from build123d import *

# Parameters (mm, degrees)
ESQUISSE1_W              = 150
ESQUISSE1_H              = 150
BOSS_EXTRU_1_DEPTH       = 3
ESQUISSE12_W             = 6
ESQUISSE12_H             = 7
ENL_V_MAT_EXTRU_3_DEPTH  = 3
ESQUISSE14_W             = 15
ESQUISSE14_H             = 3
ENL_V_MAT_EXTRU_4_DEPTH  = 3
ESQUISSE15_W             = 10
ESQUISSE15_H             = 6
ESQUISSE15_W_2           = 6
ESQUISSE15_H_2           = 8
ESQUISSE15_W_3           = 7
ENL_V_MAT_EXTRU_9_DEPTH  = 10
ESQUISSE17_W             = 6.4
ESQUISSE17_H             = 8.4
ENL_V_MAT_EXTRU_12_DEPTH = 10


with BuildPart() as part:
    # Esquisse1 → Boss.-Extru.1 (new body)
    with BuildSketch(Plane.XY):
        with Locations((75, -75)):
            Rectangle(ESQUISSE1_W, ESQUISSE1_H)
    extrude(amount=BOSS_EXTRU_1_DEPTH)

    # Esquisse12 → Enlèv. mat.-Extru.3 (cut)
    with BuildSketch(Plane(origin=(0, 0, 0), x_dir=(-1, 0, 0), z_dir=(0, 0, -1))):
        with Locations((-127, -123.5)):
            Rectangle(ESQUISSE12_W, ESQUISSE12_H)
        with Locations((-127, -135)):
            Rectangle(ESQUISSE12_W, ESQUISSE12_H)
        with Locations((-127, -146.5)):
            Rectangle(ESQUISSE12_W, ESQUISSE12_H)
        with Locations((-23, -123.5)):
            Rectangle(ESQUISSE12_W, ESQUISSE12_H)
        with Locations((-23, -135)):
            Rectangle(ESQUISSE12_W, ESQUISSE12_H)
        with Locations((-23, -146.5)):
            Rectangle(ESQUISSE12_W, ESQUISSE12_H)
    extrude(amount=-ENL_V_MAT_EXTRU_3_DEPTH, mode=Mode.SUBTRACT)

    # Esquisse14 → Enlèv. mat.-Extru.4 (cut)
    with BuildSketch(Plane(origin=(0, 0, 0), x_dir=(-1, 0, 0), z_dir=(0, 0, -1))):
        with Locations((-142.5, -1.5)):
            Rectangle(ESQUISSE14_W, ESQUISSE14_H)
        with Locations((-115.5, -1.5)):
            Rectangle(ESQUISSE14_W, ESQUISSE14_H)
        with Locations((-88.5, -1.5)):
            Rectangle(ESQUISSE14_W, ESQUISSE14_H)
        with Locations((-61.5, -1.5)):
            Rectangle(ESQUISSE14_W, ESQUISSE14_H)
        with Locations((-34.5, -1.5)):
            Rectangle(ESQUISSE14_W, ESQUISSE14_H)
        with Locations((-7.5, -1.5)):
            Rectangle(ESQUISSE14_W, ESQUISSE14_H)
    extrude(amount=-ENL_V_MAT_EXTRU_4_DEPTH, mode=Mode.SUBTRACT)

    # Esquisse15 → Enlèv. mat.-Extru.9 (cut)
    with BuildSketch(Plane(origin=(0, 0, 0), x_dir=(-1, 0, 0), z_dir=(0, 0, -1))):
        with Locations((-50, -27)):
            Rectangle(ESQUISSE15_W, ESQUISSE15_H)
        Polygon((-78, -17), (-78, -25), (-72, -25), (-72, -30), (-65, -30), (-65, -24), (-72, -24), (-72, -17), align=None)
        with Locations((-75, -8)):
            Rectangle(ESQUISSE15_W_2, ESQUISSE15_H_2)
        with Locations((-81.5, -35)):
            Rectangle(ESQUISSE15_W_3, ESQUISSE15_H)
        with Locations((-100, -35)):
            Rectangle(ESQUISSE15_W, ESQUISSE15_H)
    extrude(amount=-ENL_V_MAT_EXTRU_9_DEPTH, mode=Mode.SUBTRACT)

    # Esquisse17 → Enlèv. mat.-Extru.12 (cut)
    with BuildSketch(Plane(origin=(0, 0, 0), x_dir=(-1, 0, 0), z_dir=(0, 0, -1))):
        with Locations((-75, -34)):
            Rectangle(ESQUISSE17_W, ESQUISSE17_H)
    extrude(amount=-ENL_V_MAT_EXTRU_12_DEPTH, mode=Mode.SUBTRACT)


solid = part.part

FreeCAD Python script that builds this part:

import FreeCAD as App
import Part
import Sketcher
from FreeCAD import Vector
Q = App.Units.Quantity


def add_polygon(sketch, points):
    """Adds a closed chain of lines whose ends are joined by coincident constraints."""
    first, n = sketch.GeometryCount, len(points)
    for a, b in zip(points, points[1:] + points[:1]):
        sketch.addGeometry(Part.LineSegment(App.Vector(*a, 0), App.Vector(*b, 0)), False)
    for i in range(n):
        sketch.addConstraint(Sketcher.Constraint("Coincident", first + i, 2, first + (i + 1) % n, 1))

doc = App.newDocument("Part")
body = doc.addObject("PartDesign::Body", "Body")

# Sketch on XY plane
sketch1 = body.newObject("Sketcher::SketchObject", "Sketch")
sketch1.AttachmentSupport = (doc.getObject("XY_Plane"), [""])
sketch1.MapMode = "FlatFace"
add_polygon(sketch1, [(0, 0), (0, -150), (150, -150), (150, 0)])  # lines 0-3
sketch1.addConstraint([
    Sketcher.Constraint("Vertical", 0),
    Sketcher.Constraint("Horizontal", 1),
    Sketcher.Constraint("Vertical", 2),
    Sketcher.Constraint("Horizontal", 3),
    Sketcher.Constraint("Coincident", 3, 2, -1, 1),
    Sketcher.Constraint("Equal", 3, 0),
    Sketcher.Constraint("DistanceX", 1, 1, 1, 2, Q("150 mm")),
])
pad1 = body.newObject("PartDesign::Pad", "Pad")
pad1.Profile = sketch1
pad1.Length = 3

# Sketch on XY plane
sketch2 = body.newObject("Sketcher::SketchObject", "Sketch001")
sketch2.AttachmentSupport = (doc.getObject("XY_Plane"), [""])
sketch2.MapMode = "FlatFace"
add_polygon(sketch2, [(130, -120), (130, -127), (124, -127), (124, -120)])  # lines 0-3
add_polygon(sketch2, [(130, -131.5), (130, -138.5), (124, -138.5), (124, -131.5)])  # lines 4-7
add_polygon(sketch2, [(130, -143), (130, -150), (124, -150), (124, -143)])  # lines 8-11
add_polygon(sketch2, [(26, -120), (26, -127), (20, -127), (20, -120)])  # lines 12-15
add_polygon(sketch2, [(26, -131.5), (26, -138.5), (20, -138.5), (20, -131.5)])  # lines 16-19
add_polygon(sketch2, [(26, -143), (26, -150), (20, -150), (20, -143)])  # lines 20-23
sketch2.addConstraint([
    Sketcher.Constraint("Vertical", 0),
    Sketcher.Constraint("Horizontal", 1),
    Sketcher.Constraint("Vertical", 2),
    Sketcher.Constraint("Horizontal", 3),
    Sketcher.Constraint("Vertical", 4),
    Sketcher.Constraint("Horizontal", 5),
    Sketcher.Constraint("Vertical", 6),
    Sketcher.Constraint("Horizontal", 7),
    Sketcher.Constraint("Vertical", 8),
    Sketcher.Constraint("Horizontal", 9),
    Sketcher.Constraint("Vertical", 10),
    Sketcher.Constraint("Horizontal", 11),
    Sketcher.Constraint("Vertical", 12),
    Sketcher.Constraint("Horizontal", 13),
    Sketcher.Constraint("Vertical", 14),
    Sketcher.Constraint("Horizontal", 15),
    Sketcher.Constraint("Vertical", 16),
    Sketcher.Constraint("Horizontal", 17),
    Sketcher.Constraint("Vertical", 18),
    Sketcher.Constraint("Horizontal", 19),
    Sketcher.Constraint("Vertical", 20),
    Sketcher.Constraint("Horizontal", 21),
    Sketcher.Constraint("Vertical", 22),
    Sketcher.Constraint("Horizontal", 23),
    Sketcher.Constraint("Horizontal", 1, 2, 12, 2),
    Sketcher.Constraint("Horizontal", 3, 2, 14, 2),
    Sketcher.Constraint("Horizontal", 5, 2, 16, 2),
    Sketcher.Constraint("Horizontal", 7, 2, 18, 2),
    Sketcher.Constraint("Horizontal", 9, 2, 20, 2),
    Sketcher.Constraint("Horizontal", 11, 2, 22, 2),
    Sketcher.Constraint("Vertical", 3, 2, 4, 2),
    Sketcher.Constraint("Vertical", 2, 2, 5, 2),
    Sketcher.Constraint("Vertical", 7, 2, 8, 2),
    Sketcher.Constraint("Vertical", 6, 2, 9, 2),
    Sketcher.Constraint("Vertical", 15, 2, 16, 2),
    Sketcher.Constraint("Vertical", 14, 2, 17, 2),
    Sketcher.Constraint("Vertical", 19, 2, 20, 2),
    Sketcher.Constraint("Vertical", 18, 2, 21, 2),
    Sketcher.Constraint("Equal", 11, 13),
    Sketcher.Constraint("Equal", 2, 4),
    Sketcher.Constraint("Equal", 6, 8),
    Sketcher.Constraint("DistanceX", 1, 2, 1, 1, Q("6 mm")),
    Sketcher.Constraint("DistanceY", 0, 2, 0, 1, Q("7 mm")),
    Sketcher.Constraint("DistanceX", -1, 1, 0, 2, Q("130 mm")),
    Sketcher.Constraint("DistanceY", 0, 2, -1, 1, Q("127 mm")),
    Sketcher.Constraint("DistanceY", 8, 2, -1, 1, Q("150 mm")),
    Sketcher.Constraint("DistanceX", -1, 1, 12, 2, Q("26 mm")),
    Sketcher.Constraint("DistanceY", 4, 2, -1, 1, Q("138.5 mm")),
])
pocket1 = body.newObject("PartDesign::Pocket", "Pocket")
pocket1.Profile = sketch2
pocket1.Length = 3
pocket1.Reversed = True

# Sketch on XY plane
sketch3 = body.newObject("Sketcher::SketchObject", "Sketch002")
sketch3.AttachmentSupport = (doc.getObject("XY_Plane"), [""])
sketch3.MapMode = "FlatFace"
add_polygon(sketch3, [(150, 0), (150, -3), (135, -3), (135, 0)])  # lines 0-3
add_polygon(sketch3, [(123, 0), (123, -3), (108, -3), (108, 0)])  # lines 4-7
add_polygon(sketch3, [(96, 0), (96, -3), (81, -3), (81, 0)])  # lines 8-11
add_polygon(sketch3, [(69, 0), (69, -3), (54, -3), (54, 0)])  # lines 12-15
add_polygon(sketch3, [(42, 0), (42, -3), (27, -3), (27, 0)])  # lines 16-19
add_polygon(sketch3, [(15, 0), (15, -3), (0, -3), (0, 0)])  # lines 20-23
sketch3.addConstraint([
    Sketcher.Constraint("Vertical", 0),
    Sketcher.Constraint("Horizontal", 1),
    Sketcher.Constraint("Vertical", 2),
    Sketcher.Constraint("Horizontal", 3),
    Sketcher.Constraint("Vertical", 4),
    Sketcher.Constraint("Horizontal", 5),
    Sketcher.Constraint("Vertical", 6),
    Sketcher.Constraint("Horizontal", 7),
    Sketcher.Constraint("Vertical", 8),
    Sketcher.Constraint("Horizontal", 9),
    Sketcher.Constraint("Vertical", 10),
    Sketcher.Constraint("Horizontal", 11),
    Sketcher.Constraint("Vertical", 12),
    Sketcher.Constraint("Horizontal", 13),
    Sketcher.Constraint("Vertical", 14),
    Sketcher.Constraint("Horizontal", 15),
    Sketcher.Constraint("Vertical", 16),
    Sketcher.Constraint("Horizontal", 17),
    Sketcher.Constraint("Vertical", 18),
    Sketcher.Constraint("Horizontal", 19),
    Sketcher.Constraint("Vertical", 20),
    Sketcher.Constraint("Horizontal", 21),
    Sketcher.Constraint("Vertical", 22),
    Sketcher.Constraint("Horizontal", 23),
    Sketcher.Constraint("Coincident", 22, 2, -1, 1),
    Sketcher.Constraint("PointOnObject", 2, 2, -1),
    Sketcher.Constraint("PointOnObject", 6, 2, -1),
    Sketcher.Constraint("PointOnObject", 10, 2, -1),
    Sketcher.Constraint("PointOnObject", 14, 2, -1),
    Sketcher.Constraint("PointOnObject", 18, 2, -1),
    Sketcher.Constraint("Horizontal", 1, 2, 4, 2),
    Sketcher.Constraint("Horizontal", 5, 2, 8, 2),
    Sketcher.Constraint("Horizontal", 9, 2, 12, 2),
    Sketcher.Constraint("Horizontal", 13, 2, 16, 2),
    Sketcher.Constraint("Horizontal", 17, 2, 20, 2),
    Sketcher.Constraint("Equal", 3, 5),
    Sketcher.Constraint("Equal", 7, 9),
    Sketcher.Constraint("Equal", 11, 13),
    Sketcher.Constraint("Equal", 15, 17),
    Sketcher.Constraint("Equal", 19, 21),
    Sketcher.Constraint("DistanceX", 1, 2, 1, 1, Q("15 mm")),
    Sketcher.Constraint("DistanceY", 0, 2, 0, 1, Q("3 mm")),
    Sketcher.Constraint("DistanceX", -1, 1, 0, 2, Q("150 mm")),
    Sketcher.Constraint("DistanceX", -1, 1, 4, 2, Q("123 mm")),
    Sketcher.Constraint("DistanceX", -1, 1, 8, 2, Q("96 mm")),
    Sketcher.Constraint("DistanceX", -1, 1, 12, 2, Q("69 mm")),
    Sketcher.Constraint("DistanceX", -1, 1, 16, 2, Q("42 mm")),
])
pocket2 = body.newObject("PartDesign::Pocket", "Pocket001")
pocket2.Profile = sketch3
pocket2.Length = 3
pocket2.Reversed = True

# Sketch on XY plane
sketch4 = body.newObject("Sketcher::SketchObject", "Sketch003")
sketch4.AttachmentSupport = (doc.getObject("XY_Plane"), [""])
sketch4.MapMode = "FlatFace"
add_polygon(sketch4, [(55, -24), (55, -30), (45, -30), (45, -24)])  # lines 0-3
add_polygon(sketch4, [(78, -17), (78, -25), (72, -25), (72, -30), (65, -30), (65, -24), (72, -24), (72, -17)])  # lines 4-11
add_polygon(sketch4, [(78, -4), (78, -12), (72, -12), (72, -4)])  # lines 12-15
add_polygon(sketch4, [(85, -32), (85, -38), (78, -38), (78, -32)])  # lines 16-19
add_polygon(sketch4, [(105, -32), (105, -38), (95, -38), (95, -32)])  # lines 20-23
sketch4.addConstraint([
    Sketcher.Constraint("Vertical", 0),
    Sketcher.Constraint("Horizontal", 1),
    Sketcher.Constraint("Vertical", 2),
    Sketcher.Constraint("Horizontal", 3),
    Sketcher.Constraint("Vertical", 4),
    Sketcher.Constraint("Horizontal", 5),
    Sketcher.Constraint("Vertical", 6),
    Sketcher.Constraint("Horizontal", 7),
    Sketcher.Constraint("Vertical", 8),
    Sketcher.Constraint("Horizontal", 9),
    Sketcher.Constraint("Vertical", 10),
    Sketcher.Constraint("Horizontal", 11),
    Sketcher.Constraint("Vertical", 12),
    Sketcher.Constraint("Horizontal", 13),
    Sketcher.Constraint("Vertical", 14),
    Sketcher.Constraint("Horizontal", 15),
    Sketcher.Constraint("Vertical", 16),
    Sketcher.Constraint("Horizontal", 17),
    Sketcher.Constraint("Vertical", 18),
    Sketcher.Constraint("Horizontal", 19),
    Sketcher.Constraint("Vertical", 20),
    Sketcher.Constraint("Horizontal", 21),
    Sketcher.Constraint("Vertical", 22),
    Sketcher.Constraint("Horizontal", 23),
    Sketcher.Constraint("Horizontal", 1, 2, 6, 2),
    Sketcher.Constraint("Horizontal", 3, 2, 8, 2),
    Sketcher.Constraint("Horizontal", 17, 2, 20, 2),
    Sketcher.Constraint("Horizontal", 19, 2, 22, 2),
    Sketcher.Constraint("Vertical", 6, 2, 9, 2),
    Sketcher.Constraint("Vertical", 11, 2, 12, 2),
    Sketcher.Constraint("Vertical", 10, 2, 13, 2),
    Sketcher.Constraint("Vertical", 15, 2, 17, 2),
    Sketcher.Constraint("Equal", 9, 17),
    Sketcher.Constraint("Equal", 3, 21),
    Sketcher.Constraint("Equal", 15, 0),
    Sketcher.Constraint("Equal", 19, 10),
    Sketcher.Constraint("Equal", 4, 12),
    Sketcher.Constraint("Equal", 8, 16),
    Sketcher.Constraint("DistanceX", 1, 2, 1, 1, Q("10 mm")),
    Sketcher.Constraint("DistanceX", 5, 2, 5, 1, Q("6 mm")),
    Sketcher.Constraint("DistanceX", 7, 2, 7, 1, Q("7 mm")),
    Sketcher.Constraint("DistanceY", 4, 2, 4, 1, Q("8 mm")),
    Sketcher.Constraint("DistanceX", -1, 1, 0, 2, Q("55 mm")),
    Sketcher.Constraint("DistanceY", 0, 2, -1, 1, Q("30 mm")),
    Sketcher.Constraint("DistanceX", -1, 1, 4, 2, Q("78 mm")),
    Sketcher.Constraint("DistanceY", 12, 2, -1, 1, Q("12 mm")),
    Sketcher.Constraint("DistanceY", 16, 2, -1, 1, Q("38 mm")),
    Sketcher.Constraint("DistanceX", -1, 1, 20, 2, Q("105 mm")),
])
pocket3 = body.newObject("PartDesign::Pocket", "Pocket002")
pocket3.Profile = sketch4
pocket3.Length = 10
pocket3.Reversed = True

# Sketch on XY plane
sketch5 = body.newObject("Sketcher::SketchObject", "Sketch004")
sketch5.AttachmentSupport = (doc.getObject("XY_Plane"), [""])
sketch5.MapMode = "FlatFace"
add_polygon(sketch5, [(78.2, -29.8), (78.2, -38.2), (71.8, -38.2), (71.8, -29.8)])  # lines 0-3
sketch5.addConstraint([
    Sketcher.Constraint("Vertical", 0),
    Sketcher.Constraint("Horizontal", 1),
    Sketcher.Constraint("Vertical", 2),
    Sketcher.Constraint("Horizontal", 3),
    Sketcher.Constraint("DistanceX", 1, 2, 1, 1, Q("6.4 mm")),
    Sketcher.Constraint("DistanceY", 0, 2, 0, 1, Q("8.4 mm")),
    Sketcher.Constraint("DistanceX", -1, 1, 0, 2, Q("78.2 mm")),
    Sketcher.Constraint("DistanceY", 0, 2, -1, 1, Q("38.2 mm")),
])
pocket4 = body.newObject("PartDesign::Pocket", "Pocket003")
pocket4.Profile = sketch5
pocket4.Length = 10
pocket4.Reversed = True

doc.recompute()
